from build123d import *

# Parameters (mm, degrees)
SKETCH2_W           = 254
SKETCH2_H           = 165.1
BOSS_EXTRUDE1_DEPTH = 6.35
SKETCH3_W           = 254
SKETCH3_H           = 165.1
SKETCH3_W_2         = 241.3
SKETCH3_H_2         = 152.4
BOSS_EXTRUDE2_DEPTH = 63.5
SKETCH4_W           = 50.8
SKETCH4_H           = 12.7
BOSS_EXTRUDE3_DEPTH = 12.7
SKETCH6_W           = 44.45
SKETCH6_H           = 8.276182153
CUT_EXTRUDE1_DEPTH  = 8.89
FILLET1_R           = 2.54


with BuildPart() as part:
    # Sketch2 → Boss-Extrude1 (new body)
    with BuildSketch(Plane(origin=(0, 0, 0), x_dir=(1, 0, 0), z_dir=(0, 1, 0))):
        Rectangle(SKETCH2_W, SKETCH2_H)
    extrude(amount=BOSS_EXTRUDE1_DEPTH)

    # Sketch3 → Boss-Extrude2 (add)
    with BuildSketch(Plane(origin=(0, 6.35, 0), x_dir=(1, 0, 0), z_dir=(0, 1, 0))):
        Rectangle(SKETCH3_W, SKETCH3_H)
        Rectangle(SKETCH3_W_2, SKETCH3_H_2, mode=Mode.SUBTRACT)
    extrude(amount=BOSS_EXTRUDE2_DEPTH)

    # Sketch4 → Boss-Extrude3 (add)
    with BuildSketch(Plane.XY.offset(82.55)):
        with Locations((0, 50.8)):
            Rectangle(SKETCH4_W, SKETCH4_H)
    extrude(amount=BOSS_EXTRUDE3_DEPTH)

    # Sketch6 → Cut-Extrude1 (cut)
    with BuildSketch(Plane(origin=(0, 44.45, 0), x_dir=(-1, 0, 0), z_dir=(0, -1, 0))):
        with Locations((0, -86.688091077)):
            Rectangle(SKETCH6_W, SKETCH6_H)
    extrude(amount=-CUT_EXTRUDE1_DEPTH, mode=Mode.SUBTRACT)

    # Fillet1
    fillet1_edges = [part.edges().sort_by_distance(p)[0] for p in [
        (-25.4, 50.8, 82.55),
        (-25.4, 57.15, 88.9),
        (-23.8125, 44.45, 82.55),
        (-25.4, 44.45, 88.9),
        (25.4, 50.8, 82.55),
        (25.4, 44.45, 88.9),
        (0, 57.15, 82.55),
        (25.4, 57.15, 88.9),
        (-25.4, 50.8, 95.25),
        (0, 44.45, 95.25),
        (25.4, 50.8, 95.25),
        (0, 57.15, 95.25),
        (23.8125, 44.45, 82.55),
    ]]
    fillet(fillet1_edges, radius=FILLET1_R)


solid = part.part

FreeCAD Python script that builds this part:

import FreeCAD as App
import Part
import Sketcher

V = App.Vector
Q = App.Units.Quantity


def edges_at(feature, points):
    """Names of the edges that pass closest to the given points."""
    edges = feature.Shape.Edges
    near = lambda p: min(range(len(edges)), key=lambda i: edges[i].distToShape(Part.Vertex(*p))[0])
    return sorted({f"Edge{near(p) + 1}" for p in points})


def add_polygon(sketch, points):
    """Adds a closed chain of lines whose ends are joined by coincident constraints."""
    first, n = sketch.GeometryCount, len(points)
    for a, b in zip(points, points[1:] + points[:1]):
        sketch.addGeometry(Part.LineSegment(App.Vector(*a, 0), App.Vector(*b, 0)), False)
    for i in range(n):
        sketch.addConstraint(Sketcher.Constraint("Coincident", first + i, 2, first + (i + 1) % n, 1))

doc = App.newDocument("Part")
body = doc.addObject("PartDesign::Body", "Body")

# Sketch on XZ plane
sketch1 = body.newObject("Sketcher::SketchObject", "Sketch")
sketch1.AttachmentSupport = (doc.getObject("XZ_Plane"), [""])
sketch1.MapMode = "FlatFace"
add_polygon(sketch1, [(-127, -82.55), (-127, 82.55), (127, 82.55), (127, -82.55)])  # lines 0-3
sketch1.addConstraint([
    Sketcher.Constraint("Vertical", 0),
    Sketcher.Constraint("Horizontal", 1),
    Sketcher.Constraint("Vertical", 2),
    Sketcher.Constraint("Horizontal", 3),
    Sketcher.Constraint("Symmetric", 0, 2, 2, 2, -1, 1),
    Sketcher.Constraint("DistanceX", 1, 1, 1, 2, Q("10 in")),
    Sketcher.Constraint("DistanceY", 0, 1, 0, 2, Q("6.5 in")),
])
pad1 = body.newObject("PartDesign::Pad", "Pad")
pad1.Profile = sketch1
pad1.Length = Q("0.25 in")
pad1.Reversed = True

# Sketch on XZ plane
sketch2 = body.newObject("Sketcher::SketchObject", "Sketch001")
sketch2.AttachmentSupport = (doc.getObject("XZ_Plane"), [""])
sketch2.MapMode = "FlatFace"
sketch2.AttachmentOffset = App.Placement(V(0, 0, -0.25 * 25.4), App.Rotation())
add_polygon(sketch2, [(-127, -82.55), (-127, 82.55), (127, 82.55), (127, -82.55)])  # lines 0-3
add_polygon(sketch2, [(120.65, 76.2), (-120.65, 76.2), (-120.65, -76.2), (120.65, -76.2)])  # lines 4-7
sketch2.addConstraint([
    Sketcher.Constraint("Vertical", 0),
    Sketcher.Constraint("Horizontal", 1),
    Sketcher.Constraint("Vertical", 2),
    Sketcher.Constraint("Horizontal", 3),
    Sketcher.Constraint("Horizontal", 4),
    Sketcher.Constraint("Vertical", 5),
    Sketcher.Constraint("Horizontal", 6),
    Sketcher.Constraint("Vertical", 7),
    Sketcher.Constraint("Symmetric", 0, 2, 2, 2, -1, 1),
    Sketcher.Constraint("Symmetric", 4, 2, 6, 2, -1, 1),
    Sketcher.Constraint("DistanceX", 1, 1, 1, 2, Q("10 in")),
    Sketcher.Constraint("DistanceY", 5, 2, 5, 1, Q("6 in")),
    Sketcher.Constraint("DistanceX", 4, 2, 4, 1, Q("9.5 in")),
    Sketcher.Constraint("DistanceY", 0, 1, 0, 2, Q("6.5 in")),
])
pad2 = body.newObject("PartDesign::Pad", "Pad001")
pad2.Profile = sketch2
pad2.Length = Q("2.5 in")
pad2.Reversed = True

# Sketch on XY plane
sketch3 = body.newObject("Sketcher::SketchObject", "Sketch002")
sketch3.AttachmentSupport = (doc.getObject("XY_Plane"), [""])
sketch3.MapMode = "FlatFace"
sketch3.AttachmentOffset = App.Placement(V(0, 0, 3.25 * 25.4), App.Rotation())
add_polygon(sketch3, [(-25.4, 57.15), (-25.4, 44.45), (25.4, 44.45), (25.4, 57.15)])  # lines 0-3
sketch3.addConstraint([
    Sketcher.Constraint("Vertical", 0),
    Sketcher.Constraint("Horizontal", 1),
    Sketcher.Constraint("Vertical", 2),
    Sketcher.Constraint("Horizontal", 3),
    Sketcher.Constraint("DistanceX", 1, 1, 1, 2, Q("2 in")),
    Sketcher.Constraint("DistanceY", 0, 2, 0, 1, Q("0.5 in")),
    Sketcher.Constraint("DistanceX", 0, 2, -1, 1, Q("1 in")),
    Sketcher.Constraint("DistanceY", -1, 1, 0, 2, Q("1.75 in")),
])
pad3 = body.newObject("PartDesign::Pad", "Pad002")
pad3.Profile = sketch3
pad3.Length = Q("0.5 in")

# Sketch on XZ plane
sketch4 = body.newObject("Sketcher::SketchObject", "Sketch003")
sketch4.AttachmentSupport = (doc.getObject("XZ_Plane"), [""])
sketch4.MapMode = "FlatFace"
sketch4.AttachmentOffset = App.Placement(V(0, 0, -1.75 * 25.4), App.Rotation())
add_polygon(sketch4, [(22.225, 82.55), (22.225, 90.826182), (-22.225, 90.826182), (-22.225, 82.55)])  # lines 0-3
sketch4.addConstraint([
    Sketcher.Constraint("Vertical", 0),
    Sketcher.Constraint("Horizontal", 1),
    Sketcher.Constraint("Vertical", 2),
    Sketcher.Constraint("Horizontal", 3),
    Sketcher.Constraint("DistanceX", 1, 2, 1, 1, Q("1.75 in")),
    Sketcher.Constraint("DistanceY", -1, 1, 2, 2, Q("3.25 in")),
    Sketcher.Constraint("DistanceX", -1, 1, 0, 2, Q("0.875 in")),
    Sketcher.Constraint("DistanceY", 0, 1, 0, 2, 8.276182),
])
pocket1 = body.newObject("PartDesign::Pocket", "Pocket")
pocket1.Profile = sketch4
pocket1.Length = Q("0.35 in")
doc.recompute()

fillet = body.newObject("PartDesign::Fillet", "Fillet")
fillet.Base = (pocket1, edges_at(pocket1, [
    (-25.4, 50.8, 82.55),
    (-25.4, 57.15, 88.9),
    (-23.812, 44.45, 82.55),
    (-25.4, 44.45, 88.9),
    (25.4, 50.8, 82.55),
    (25.4, 44.45, 88.9),
    (0, 57.15, 82.55),
    (25.4, 57.15, 88.9),
    (-25.4, 50.8, 95.25),
    (0, 44.45, 95.25),
    (25.4, 50.8, 95.25),
    (0, 57.15, 95.25),
    (23.812, 44.45, 82.55),
]))
fillet.Radius = Q("0.1 in")

doc.recompute()
